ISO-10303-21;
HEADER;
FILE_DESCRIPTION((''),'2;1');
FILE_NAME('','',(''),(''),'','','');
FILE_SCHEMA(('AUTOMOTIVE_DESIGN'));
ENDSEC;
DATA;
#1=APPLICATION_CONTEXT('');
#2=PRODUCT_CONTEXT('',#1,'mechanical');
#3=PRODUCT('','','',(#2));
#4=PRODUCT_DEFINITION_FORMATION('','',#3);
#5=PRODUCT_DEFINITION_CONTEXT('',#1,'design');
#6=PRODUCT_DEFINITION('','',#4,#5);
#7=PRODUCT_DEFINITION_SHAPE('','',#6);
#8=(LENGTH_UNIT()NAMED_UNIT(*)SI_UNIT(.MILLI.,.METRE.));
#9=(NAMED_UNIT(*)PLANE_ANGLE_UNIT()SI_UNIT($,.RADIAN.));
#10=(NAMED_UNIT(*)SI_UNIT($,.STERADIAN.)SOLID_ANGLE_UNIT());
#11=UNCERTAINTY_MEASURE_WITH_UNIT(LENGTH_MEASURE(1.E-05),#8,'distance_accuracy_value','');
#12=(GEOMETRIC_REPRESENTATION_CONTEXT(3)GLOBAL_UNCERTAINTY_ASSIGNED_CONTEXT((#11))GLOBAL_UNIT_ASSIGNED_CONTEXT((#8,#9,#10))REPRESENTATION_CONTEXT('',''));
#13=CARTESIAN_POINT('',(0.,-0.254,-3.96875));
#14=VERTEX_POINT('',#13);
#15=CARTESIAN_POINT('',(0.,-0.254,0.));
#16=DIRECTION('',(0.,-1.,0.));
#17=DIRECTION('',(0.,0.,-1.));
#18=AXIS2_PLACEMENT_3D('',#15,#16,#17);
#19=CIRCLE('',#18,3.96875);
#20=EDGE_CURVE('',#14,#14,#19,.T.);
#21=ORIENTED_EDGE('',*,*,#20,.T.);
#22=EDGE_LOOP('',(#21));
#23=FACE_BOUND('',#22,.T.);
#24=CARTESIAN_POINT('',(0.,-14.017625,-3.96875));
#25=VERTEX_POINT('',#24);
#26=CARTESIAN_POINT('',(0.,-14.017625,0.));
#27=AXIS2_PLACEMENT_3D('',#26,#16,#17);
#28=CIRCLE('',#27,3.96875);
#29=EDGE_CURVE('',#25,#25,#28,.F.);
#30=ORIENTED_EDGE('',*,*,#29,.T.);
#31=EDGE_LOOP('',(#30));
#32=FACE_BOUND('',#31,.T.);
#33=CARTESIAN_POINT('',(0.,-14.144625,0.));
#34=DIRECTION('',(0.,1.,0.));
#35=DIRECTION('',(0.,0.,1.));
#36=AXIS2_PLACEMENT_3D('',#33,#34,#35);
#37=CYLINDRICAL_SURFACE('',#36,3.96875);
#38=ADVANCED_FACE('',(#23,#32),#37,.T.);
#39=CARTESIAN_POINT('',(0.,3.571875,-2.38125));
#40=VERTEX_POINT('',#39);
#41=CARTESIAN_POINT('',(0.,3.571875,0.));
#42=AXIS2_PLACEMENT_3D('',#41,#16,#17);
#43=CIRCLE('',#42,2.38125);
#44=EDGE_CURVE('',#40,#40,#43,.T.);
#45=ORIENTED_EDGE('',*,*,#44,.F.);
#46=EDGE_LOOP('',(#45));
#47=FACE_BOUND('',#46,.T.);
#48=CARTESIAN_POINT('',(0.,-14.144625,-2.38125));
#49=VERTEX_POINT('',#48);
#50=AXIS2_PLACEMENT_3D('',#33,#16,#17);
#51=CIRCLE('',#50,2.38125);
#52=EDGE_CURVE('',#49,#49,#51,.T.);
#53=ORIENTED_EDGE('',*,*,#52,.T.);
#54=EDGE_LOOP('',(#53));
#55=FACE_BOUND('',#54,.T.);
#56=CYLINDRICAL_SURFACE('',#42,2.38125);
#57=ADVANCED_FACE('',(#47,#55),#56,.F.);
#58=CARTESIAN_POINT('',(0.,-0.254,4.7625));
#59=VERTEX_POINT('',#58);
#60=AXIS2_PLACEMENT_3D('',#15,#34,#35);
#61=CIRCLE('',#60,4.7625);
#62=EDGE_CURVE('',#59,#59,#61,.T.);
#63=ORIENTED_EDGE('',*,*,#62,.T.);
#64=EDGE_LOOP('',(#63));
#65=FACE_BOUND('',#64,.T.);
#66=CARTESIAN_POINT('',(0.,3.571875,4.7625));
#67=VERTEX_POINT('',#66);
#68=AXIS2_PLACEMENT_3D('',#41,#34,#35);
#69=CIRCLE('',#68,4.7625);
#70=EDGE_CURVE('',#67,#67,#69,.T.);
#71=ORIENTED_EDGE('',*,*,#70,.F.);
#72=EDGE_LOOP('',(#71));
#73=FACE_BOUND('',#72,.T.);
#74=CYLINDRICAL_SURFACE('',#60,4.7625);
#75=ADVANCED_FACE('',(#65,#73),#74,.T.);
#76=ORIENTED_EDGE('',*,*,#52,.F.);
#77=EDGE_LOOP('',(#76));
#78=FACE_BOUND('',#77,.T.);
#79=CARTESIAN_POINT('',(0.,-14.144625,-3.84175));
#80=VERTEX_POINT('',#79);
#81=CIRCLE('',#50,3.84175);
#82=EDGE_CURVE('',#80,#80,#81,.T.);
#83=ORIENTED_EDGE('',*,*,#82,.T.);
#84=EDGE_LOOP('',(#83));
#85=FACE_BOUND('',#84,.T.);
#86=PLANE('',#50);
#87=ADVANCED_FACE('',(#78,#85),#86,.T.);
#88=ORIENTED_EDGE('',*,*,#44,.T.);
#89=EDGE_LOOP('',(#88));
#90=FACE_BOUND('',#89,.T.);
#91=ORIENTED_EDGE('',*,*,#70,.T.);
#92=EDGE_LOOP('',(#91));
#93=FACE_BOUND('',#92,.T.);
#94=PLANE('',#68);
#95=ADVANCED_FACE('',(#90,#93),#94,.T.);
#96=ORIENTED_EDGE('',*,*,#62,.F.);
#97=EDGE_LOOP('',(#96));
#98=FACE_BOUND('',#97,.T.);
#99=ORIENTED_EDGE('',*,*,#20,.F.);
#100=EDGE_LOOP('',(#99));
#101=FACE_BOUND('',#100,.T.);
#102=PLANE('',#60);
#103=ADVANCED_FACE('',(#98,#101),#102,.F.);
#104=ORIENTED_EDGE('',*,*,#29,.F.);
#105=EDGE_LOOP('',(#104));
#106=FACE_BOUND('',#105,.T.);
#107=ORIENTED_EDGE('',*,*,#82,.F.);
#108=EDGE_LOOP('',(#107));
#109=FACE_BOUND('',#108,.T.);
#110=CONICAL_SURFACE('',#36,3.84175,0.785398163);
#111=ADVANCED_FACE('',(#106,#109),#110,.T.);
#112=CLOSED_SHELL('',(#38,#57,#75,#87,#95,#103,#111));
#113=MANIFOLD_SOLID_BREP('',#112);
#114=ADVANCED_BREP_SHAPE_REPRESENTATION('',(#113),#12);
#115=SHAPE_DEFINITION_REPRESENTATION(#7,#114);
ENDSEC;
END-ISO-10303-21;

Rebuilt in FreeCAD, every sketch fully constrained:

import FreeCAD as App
import Part
import Sketcher

V = App.Vector
Q = App.Units.Quantity


def edges_at(feature, points):
    """Names of the edges that pass closest to the given points."""
    edges = feature.Shape.Edges
    near = lambda p: min(range(len(edges)), key=lambda i: edges[i].distToShape(Part.Vertex(*p))[0])
    return sorted({f"Edge{near(p) + 1}" for p in points})

doc = App.newDocument("Part")
body = doc.addObject("PartDesign::Body", "Body")

# Sketch on XZ plane
sketch1 = body.newObject("Sketcher::SketchObject", "Sketch")
sketch1.AttachmentSupport = (doc.getObject("XZ_Plane"), [""])
sketch1.MapMode = "FlatFace"
sketch1.addGeometry(Part.Circle(V(0, 0, 0), V(0, 0, 1), 4.8), False)
sketch1.addConstraint(Sketcher.Constraint("Coincident", 0, 3, -1, 1))
sketch1.addConstraint(Sketcher.Constraint("Diameter", 0, Q("0.375 in")))
pad1 = body.newObject("PartDesign::Pad", "Pad")
pad1.Profile = sketch1
pad1.Type = "TwoLengths"
pad1.Length = Q("0.140625 in")
pad1.Length2 = Q("0.01 in")
pad1.Reversed = True

# Sketch on XZ plane
sketch2 = body.newObject("Sketcher::SketchObject", "Sketch001")
sketch2.AttachmentSupport = (doc.getObject("XZ_Plane"), [""])
sketch2.MapMode = "FlatFace"
sketch2.AttachmentOffset = App.Placement(V(0, 0, 0.01 * 25.4), App.Rotation())
sketch2.addGeometry(Part.Circle(V(0, 0, 0), V(0, 0, 1), 4), False)
sketch2.addConstraint(Sketcher.Constraint("Coincident", 0, 3, -1, 1))
sketch2.addConstraint(Sketcher.Constraint("Diameter", 0, Q("0.3125 in")))
pad2 = body.newObject("PartDesign::Pad", "Pad001")
pad2.Profile = sketch2
pad2.Length = Q("0.546875 in")

# Sketch on XZ plane
sketch3 = body.newObject("Sketcher::SketchObject", "Sketch002")
sketch3.AttachmentSupport = (doc.getObject("XZ_Plane"), [""])
sketch3.MapMode = "FlatFace"
sketch3.AttachmentOffset = App.Placement(V(0, 0, 14.144625), App.Rotation())
sketch3.addGeometry(Part.Circle(V(0, 0, 0), V(0, 0, 1), 2.4), False)
sketch3.addConstraint(Sketcher.Constraint("Coincident", 0, 3, -1, 1))
sketch3.addConstraint(Sketcher.Constraint("Diameter", 0, Q("0.1875 in")))
pocket1 = body.newObject("PartDesign::Pocket", "Pocket")
pocket1.Profile = sketch3
pocket1.Type = "ThroughAll"
doc.recompute()

chamfer = body.newObject("PartDesign::Chamfer", "Chamfer")
chamfer.Base = (pocket1, edges_at(pocket1, [(0, -14.145, 3.969)]))
chamfer.Size = Q("0.005 in")

doc.recompute()
